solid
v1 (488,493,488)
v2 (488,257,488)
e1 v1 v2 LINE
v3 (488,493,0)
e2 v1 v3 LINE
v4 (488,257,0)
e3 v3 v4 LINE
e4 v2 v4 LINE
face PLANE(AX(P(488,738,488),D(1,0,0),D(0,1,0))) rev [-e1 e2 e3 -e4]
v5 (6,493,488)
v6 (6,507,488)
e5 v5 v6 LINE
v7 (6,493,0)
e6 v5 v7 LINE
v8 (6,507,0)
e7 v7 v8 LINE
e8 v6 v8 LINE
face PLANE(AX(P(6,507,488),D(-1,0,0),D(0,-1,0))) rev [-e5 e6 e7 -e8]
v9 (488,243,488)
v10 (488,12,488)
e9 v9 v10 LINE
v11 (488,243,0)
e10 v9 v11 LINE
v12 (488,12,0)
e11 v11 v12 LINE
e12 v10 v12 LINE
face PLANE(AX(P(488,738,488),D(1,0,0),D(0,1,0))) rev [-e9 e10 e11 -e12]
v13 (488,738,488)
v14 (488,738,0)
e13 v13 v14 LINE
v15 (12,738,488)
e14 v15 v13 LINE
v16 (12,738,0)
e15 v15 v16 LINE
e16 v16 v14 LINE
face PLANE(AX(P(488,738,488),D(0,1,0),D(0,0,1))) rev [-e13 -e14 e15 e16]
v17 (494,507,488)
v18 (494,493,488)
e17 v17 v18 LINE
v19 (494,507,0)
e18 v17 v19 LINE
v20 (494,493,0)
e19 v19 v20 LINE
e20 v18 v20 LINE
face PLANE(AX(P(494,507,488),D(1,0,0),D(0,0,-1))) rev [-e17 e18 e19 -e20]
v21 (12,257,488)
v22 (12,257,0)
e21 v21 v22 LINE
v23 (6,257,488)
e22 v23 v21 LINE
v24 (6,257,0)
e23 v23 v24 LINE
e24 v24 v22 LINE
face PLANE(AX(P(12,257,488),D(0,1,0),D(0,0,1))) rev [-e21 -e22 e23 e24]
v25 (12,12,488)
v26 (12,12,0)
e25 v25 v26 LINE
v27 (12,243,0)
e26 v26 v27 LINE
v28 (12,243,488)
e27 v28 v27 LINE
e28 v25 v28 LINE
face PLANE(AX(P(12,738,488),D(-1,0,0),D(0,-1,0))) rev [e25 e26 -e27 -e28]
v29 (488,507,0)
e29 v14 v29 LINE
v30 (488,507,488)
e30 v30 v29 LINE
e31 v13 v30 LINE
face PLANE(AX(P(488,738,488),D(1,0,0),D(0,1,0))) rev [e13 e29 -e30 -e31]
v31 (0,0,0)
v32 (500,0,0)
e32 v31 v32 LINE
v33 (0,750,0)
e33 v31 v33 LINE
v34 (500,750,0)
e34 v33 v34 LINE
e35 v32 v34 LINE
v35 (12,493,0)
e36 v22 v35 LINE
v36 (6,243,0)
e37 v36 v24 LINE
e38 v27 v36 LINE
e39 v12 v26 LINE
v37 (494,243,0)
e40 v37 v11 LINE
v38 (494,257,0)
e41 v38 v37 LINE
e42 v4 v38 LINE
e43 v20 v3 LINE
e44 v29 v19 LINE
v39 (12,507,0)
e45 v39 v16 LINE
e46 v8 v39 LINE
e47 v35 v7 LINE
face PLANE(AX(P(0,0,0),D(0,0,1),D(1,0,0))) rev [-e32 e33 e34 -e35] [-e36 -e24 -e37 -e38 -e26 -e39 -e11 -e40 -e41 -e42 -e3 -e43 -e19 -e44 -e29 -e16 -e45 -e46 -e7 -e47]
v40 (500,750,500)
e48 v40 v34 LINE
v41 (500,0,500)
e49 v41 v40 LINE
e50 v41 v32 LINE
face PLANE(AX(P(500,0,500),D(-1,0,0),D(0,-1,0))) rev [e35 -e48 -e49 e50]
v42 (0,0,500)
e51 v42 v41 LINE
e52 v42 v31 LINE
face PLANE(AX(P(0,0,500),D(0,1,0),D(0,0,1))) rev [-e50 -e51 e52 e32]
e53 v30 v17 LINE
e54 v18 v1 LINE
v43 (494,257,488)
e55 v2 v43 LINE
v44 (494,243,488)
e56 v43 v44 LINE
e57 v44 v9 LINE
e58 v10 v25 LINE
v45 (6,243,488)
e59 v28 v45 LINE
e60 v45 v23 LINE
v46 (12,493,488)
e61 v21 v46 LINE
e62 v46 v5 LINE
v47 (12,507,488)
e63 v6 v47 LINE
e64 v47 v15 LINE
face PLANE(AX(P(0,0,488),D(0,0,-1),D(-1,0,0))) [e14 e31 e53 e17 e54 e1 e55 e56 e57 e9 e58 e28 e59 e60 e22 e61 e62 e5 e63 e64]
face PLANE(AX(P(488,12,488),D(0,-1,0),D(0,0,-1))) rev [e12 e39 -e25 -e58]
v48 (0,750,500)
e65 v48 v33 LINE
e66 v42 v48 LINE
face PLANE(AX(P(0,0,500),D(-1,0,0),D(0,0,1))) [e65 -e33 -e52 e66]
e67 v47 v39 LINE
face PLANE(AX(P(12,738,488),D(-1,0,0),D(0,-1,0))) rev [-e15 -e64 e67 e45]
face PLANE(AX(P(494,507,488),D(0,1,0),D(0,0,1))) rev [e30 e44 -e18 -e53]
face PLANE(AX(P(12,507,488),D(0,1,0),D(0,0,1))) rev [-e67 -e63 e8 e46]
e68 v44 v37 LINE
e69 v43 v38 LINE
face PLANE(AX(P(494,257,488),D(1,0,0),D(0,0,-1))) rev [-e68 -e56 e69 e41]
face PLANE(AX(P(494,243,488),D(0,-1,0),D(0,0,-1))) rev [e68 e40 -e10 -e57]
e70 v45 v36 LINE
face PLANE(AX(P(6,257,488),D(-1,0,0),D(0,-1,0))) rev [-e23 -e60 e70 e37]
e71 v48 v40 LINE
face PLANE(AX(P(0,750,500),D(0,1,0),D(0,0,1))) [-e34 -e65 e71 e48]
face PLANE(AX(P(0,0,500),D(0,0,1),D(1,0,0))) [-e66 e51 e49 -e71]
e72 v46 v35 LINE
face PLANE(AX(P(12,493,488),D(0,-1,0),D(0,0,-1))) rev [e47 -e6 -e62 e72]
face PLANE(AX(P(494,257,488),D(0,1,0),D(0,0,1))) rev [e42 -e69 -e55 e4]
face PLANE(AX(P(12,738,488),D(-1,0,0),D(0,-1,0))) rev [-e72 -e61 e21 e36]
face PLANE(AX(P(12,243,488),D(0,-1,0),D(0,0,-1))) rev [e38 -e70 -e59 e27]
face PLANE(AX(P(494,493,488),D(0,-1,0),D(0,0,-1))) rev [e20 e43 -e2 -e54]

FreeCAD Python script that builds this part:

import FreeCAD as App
import Part
import Sketcher

V = App.Vector


def add_polygon(sketch, points):
    """Adds a closed chain of lines whose ends are joined by coincident constraints."""
    first, n = sketch.GeometryCount, len(points)
    for a, b in zip(points, points[1:] + points[:1]):
        sketch.addGeometry(Part.LineSegment(App.Vector(*a, 0), App.Vector(*b, 0)), False)
    for i in range(n):
        sketch.addConstraint(Sketcher.Constraint("Coincident", first + i, 2, first + (i + 1) % n, 1))

doc = App.newDocument("Part")
body = doc.addObject("PartDesign::Body", "Body")

# Sketch on XY plane
sketch1 = body.newObject("Sketcher::SketchObject", "Sketch")
sketch1.AttachmentSupport = (doc.getObject("XY_Plane"), [""])
sketch1.MapMode = "FlatFace"
add_polygon(sketch1, [(0, 750), (0, 0), (500, 0), (500, 750)])  # lines 0-3
sketch1.addConstraint([
    Sketcher.Constraint("Vertical", 0),
    Sketcher.Constraint("Horizontal", 1),
    Sketcher.Constraint("Vertical", 2),
    Sketcher.Constraint("Horizontal", 3),
    Sketcher.Constraint("Coincident", 0, 2, -1, 1),
    Sketcher.Constraint("DistanceX", 1, 1, 1, 2, 500.0),
    Sketcher.Constraint("DistanceY", 0, 2, 0, 1, 750.0),
])
pad1 = body.newObject("PartDesign::Pad", "Pad")
pad1.Profile = sketch1
pad1.Length = 500

# Sketch on XY plane
sketch2 = body.newObject("Sketcher::SketchObject", "Sketch001")
sketch2.AttachmentSupport = (doc.getObject("XY_Plane"), [""])
sketch2.MapMode = "FlatFace"
add_polygon(sketch2, [(488, 738), (488, 12), (12, 12), (12, 738)])  # lines 0-3
sketch2.addConstraint([
    Sketcher.Constraint("Vertical", 0),
    Sketcher.Constraint("Horizontal", 1),
    Sketcher.Constraint("Vertical", 2),
    Sketcher.Constraint("Horizontal", 3),
    Sketcher.Constraint("DistanceX", 1, 2, 1, 1, 476.0),
    Sketcher.Constraint("DistanceY", 0, 2, 0, 1, 726.0),
    Sketcher.Constraint("DistanceX", -1, 1, 0, 2, 488.0),
    Sketcher.Constraint("DistanceY", -1, 1, 0, 2, 12.0),
])
pocket1 = body.newObject("PartDesign::Pocket", "Pocket")
pocket1.Profile = sketch2
pocket1.Length = 488
pocket1.Reversed = True

# Sketch on XY plane
sketch3 = body.newObject("Sketcher::SketchObject", "Sketch002")
sketch3.AttachmentSupport = (doc.getObject("XY_Plane"), [""])
sketch3.MapMode = "FlatFace"
add_polygon(sketch3, [(494, 257), (494, 243), (488, 243), (488, 257)])  # lines 0-3
add_polygon(sketch3, [(494, 507), (494, 493), (488, 493), (488, 507)])  # lines 4-7
add_polygon(sketch3, [(12, 507), (12, 493), (6, 493), (6, 507)])  # lines 8-11
add_polygon(sketch3, [(12, 257), (12, 243), (6, 243), (6, 257)])  # lines 12-15
sketch3.addConstraint([
    Sketcher.Constraint("Vertical", 0),
    Sketcher.Constraint("Horizontal", 1),
    Sketcher.Constraint("Vertical", 2),
    Sketcher.Constraint("Horizontal", 3),
    Sketcher.Constraint("Vertical", 4),
    Sketcher.Constraint("Horizontal", 5),
    Sketcher.Constraint("Vertical", 6),
    Sketcher.Constraint("Horizontal", 7),
    Sketcher.Constraint("Vertical", 8),
    Sketcher.Constraint("Horizontal", 9),
    Sketcher.Constraint("Vertical", 10),
    Sketcher.Constraint("Horizontal", 11),
    Sketcher.Constraint("Vertical", 12),
    Sketcher.Constraint("Horizontal", 13),
    Sketcher.Constraint("Vertical", 14),
    Sketcher.Constraint("Horizontal", 15),
    Sketcher.Constraint("Horizontal", 5, 2, 8, 2),
    Sketcher.Constraint("Horizontal", 7, 2, 10, 2),
    Sketcher.Constraint("Horizontal", 1, 2, 12, 2),
    Sketcher.Constraint("Horizontal", 3, 2, 14, 2),
    Sketcher.Constraint("Vertical", 3, 2, 4, 2),
    Sketcher.Constraint("Vertical", 2, 2, 5, 2),
    Sketcher.Constraint("Vertical", 11, 2, 12, 2),
    Sketcher.Constraint("Vertical", 10, 2, 13, 2),
    Sketcher.Constraint("Equal", 7, 9),
    Sketcher.Constraint("Equal", 2, 4),
    Sketcher.Constraint("DistanceX", 1, 2, 1, 1, 6.0),
    Sketcher.Constraint("DistanceY", 0, 2, 0, 1, 14.0),
    Sketcher.Constraint("DistanceX", -1, 1, 0, 2, 494.0),
    Sketcher.Constraint("DistanceY", -1, 1, 0, 2, 243.0),
    Sketcher.Constraint("DistanceY", -1, 1, 4, 2, 493.0),
    Sketcher.Constraint("DistanceX", -1, 1, 8, 2, 12.0),
])
pocket2 = body.newObject("PartDesign::Pocket", "Pocket001")
pocket2.Profile = sketch3
pocket2.Length = 488
pocket2.Reversed = True

doc.recompute()
